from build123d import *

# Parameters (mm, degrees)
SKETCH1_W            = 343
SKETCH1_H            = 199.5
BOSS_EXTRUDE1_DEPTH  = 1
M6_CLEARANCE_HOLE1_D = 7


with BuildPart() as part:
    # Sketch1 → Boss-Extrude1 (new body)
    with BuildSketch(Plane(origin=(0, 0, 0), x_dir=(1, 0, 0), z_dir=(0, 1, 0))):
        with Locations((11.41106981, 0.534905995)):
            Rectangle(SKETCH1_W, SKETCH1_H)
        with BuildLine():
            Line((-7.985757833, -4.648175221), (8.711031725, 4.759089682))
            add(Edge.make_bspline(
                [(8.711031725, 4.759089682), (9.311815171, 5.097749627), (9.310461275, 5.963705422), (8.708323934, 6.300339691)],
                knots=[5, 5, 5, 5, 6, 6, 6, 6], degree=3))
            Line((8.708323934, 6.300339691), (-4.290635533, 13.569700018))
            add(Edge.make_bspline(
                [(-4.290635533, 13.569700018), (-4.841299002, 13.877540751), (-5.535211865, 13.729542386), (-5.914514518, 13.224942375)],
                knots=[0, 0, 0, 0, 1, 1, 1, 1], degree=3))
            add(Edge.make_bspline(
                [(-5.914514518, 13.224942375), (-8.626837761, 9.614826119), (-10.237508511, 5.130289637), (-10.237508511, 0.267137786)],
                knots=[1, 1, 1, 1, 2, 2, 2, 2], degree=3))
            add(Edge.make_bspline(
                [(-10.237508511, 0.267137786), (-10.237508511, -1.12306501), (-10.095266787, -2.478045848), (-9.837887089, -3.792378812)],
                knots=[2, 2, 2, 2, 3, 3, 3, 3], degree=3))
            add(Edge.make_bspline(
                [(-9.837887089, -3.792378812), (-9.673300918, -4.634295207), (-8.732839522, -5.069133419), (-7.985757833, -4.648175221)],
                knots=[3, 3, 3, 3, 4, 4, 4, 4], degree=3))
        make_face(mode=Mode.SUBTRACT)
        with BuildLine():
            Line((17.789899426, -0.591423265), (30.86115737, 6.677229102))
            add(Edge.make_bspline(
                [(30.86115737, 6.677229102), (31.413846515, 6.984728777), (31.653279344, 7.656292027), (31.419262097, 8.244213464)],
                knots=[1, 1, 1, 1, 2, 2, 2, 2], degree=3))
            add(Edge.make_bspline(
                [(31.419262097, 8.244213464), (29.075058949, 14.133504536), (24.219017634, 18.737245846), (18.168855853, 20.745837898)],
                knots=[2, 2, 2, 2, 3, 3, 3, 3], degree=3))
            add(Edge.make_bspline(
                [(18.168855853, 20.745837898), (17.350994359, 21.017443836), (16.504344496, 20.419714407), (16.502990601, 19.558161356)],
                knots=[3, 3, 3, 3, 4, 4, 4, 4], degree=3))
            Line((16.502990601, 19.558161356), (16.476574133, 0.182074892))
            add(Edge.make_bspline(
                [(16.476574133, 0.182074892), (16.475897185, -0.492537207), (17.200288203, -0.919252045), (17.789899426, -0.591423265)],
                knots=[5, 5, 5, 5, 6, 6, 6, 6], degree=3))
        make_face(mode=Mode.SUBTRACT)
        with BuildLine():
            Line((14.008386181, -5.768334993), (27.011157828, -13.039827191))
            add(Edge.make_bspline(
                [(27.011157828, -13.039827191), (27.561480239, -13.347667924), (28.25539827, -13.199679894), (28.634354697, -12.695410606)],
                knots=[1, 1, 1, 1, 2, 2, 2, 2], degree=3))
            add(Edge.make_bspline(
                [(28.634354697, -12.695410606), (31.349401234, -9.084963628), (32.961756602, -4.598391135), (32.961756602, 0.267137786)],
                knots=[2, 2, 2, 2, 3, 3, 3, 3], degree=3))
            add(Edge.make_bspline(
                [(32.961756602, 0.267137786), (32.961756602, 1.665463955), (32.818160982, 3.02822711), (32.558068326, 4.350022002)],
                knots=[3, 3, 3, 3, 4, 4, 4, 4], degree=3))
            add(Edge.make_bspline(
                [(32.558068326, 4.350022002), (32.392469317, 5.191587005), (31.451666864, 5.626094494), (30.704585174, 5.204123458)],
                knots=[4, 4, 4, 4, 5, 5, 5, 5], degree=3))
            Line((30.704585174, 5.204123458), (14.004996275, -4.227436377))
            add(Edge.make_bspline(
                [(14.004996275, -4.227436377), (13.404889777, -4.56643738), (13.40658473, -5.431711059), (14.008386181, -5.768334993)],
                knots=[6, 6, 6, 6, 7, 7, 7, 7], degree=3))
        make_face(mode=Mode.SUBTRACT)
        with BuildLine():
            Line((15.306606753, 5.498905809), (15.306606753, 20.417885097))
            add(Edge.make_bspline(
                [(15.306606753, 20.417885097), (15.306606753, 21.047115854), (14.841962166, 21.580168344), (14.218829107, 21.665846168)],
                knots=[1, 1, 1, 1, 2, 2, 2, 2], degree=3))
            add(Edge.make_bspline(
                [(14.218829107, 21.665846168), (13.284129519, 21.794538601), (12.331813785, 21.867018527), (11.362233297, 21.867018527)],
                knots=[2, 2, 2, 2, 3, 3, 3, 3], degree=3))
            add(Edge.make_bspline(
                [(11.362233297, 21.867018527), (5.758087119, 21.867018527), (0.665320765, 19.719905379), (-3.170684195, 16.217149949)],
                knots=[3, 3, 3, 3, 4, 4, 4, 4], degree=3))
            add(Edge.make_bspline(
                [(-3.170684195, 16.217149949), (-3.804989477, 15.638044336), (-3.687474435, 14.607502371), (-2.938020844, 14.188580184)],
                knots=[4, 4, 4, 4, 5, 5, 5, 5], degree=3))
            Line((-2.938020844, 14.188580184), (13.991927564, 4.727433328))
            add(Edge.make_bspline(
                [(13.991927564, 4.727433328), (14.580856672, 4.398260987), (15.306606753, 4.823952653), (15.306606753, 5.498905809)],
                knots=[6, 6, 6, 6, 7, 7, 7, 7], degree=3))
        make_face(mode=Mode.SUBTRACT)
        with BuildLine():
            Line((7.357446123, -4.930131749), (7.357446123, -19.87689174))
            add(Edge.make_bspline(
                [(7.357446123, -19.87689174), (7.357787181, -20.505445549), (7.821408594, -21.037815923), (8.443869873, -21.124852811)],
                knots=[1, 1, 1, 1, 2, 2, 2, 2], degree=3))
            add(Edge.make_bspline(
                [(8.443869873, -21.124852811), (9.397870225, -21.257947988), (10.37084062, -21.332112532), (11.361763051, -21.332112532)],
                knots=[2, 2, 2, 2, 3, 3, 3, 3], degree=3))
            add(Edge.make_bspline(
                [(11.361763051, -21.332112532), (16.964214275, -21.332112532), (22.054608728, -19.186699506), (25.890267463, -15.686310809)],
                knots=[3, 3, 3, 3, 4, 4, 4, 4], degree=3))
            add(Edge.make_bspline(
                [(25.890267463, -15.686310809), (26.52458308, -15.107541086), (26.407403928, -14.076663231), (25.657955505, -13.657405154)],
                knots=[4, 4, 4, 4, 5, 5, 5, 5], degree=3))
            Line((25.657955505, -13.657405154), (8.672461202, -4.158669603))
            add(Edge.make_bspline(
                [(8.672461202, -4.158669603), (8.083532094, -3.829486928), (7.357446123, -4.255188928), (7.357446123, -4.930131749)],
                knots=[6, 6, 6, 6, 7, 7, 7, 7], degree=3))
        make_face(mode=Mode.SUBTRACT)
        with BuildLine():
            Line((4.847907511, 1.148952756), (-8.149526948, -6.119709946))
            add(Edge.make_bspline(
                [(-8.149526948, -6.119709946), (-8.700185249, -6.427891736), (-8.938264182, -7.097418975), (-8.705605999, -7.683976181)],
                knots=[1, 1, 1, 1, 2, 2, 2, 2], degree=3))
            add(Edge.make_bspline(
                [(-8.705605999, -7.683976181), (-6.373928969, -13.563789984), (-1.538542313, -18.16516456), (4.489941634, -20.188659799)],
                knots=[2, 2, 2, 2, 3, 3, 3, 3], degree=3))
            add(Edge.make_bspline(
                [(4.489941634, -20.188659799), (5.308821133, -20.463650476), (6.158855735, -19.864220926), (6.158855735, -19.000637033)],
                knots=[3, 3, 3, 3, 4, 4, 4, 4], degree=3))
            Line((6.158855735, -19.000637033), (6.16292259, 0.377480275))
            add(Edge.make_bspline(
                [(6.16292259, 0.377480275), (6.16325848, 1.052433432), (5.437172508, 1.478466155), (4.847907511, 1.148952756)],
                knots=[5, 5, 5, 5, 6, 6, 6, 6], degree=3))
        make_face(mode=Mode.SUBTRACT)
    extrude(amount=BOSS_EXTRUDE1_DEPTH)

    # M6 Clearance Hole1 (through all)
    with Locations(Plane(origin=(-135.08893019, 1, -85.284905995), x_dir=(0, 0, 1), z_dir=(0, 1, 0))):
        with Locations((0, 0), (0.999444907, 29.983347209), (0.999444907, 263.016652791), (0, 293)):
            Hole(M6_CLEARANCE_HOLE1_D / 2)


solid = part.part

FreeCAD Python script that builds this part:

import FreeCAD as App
import Part
import Sketcher

V = App.Vector


def add_polygon(sketch, points):
    """Adds a closed chain of lines whose ends are joined by coincident constraints."""
    first, n = sketch.GeometryCount, len(points)
    for a, b in zip(points, points[1:] + points[:1]):
        sketch.addGeometry(Part.LineSegment(App.Vector(*a, 0), App.Vector(*b, 0)), False)
    for i in range(n):
        sketch.addConstraint(Sketcher.Constraint("Coincident", first + i, 2, first + (i + 1) % n, 1))

doc = App.newDocument("Part")
body = doc.addObject("PartDesign::Body", "Body")

sketch1 = doc.addObject("Sketcher::SketchObject", "Sketch")
body.addObject(sketch1)
sketch1.AttachmentSupport = (doc.XZ_Plane, [""])
sketch1.MapMode = "FlatFace"
add_polygon(sketch1, [(-160.08893, -100.284906), (-160.08893, 99.215094), (182.91107, 99.215094), (182.91107, -100.284906)])
sketch1.addGeometry(Part.LineSegment(V(-8.149527, 6.11971, 0), V(4.847908, -1.148953, 0)), False)
sketch1.addGeometry(Part.BSplineCurve([V(6.162923, -0.37748, 0), V(6.163258, -1.052433, 0), V(5.437173, -1.478466, 0), V(4.847908, -1.148953, 0)], [4, 4], [5, 6], False, 3, [1, 1, 1, 1], False), False)
sketch1.addGeometry(Part.LineSegment(V(6.162923, -0.37748, 0), V(6.158856, 19.000637, 0)), False)
sketch1.addGeometry(Part.BSplineCurve([V(4.489942, 20.18866, 0), V(5.308821, 20.46365, 0), V(6.158856, 19.864221, 0), V(6.158856, 19.000637, 0)], [4, 4], [3, 4], False, 3, [1, 1, 1, 1], False), False)
sketch1.addGeometry(Part.BSplineCurve([V(-8.705606, 7.683976, 0), V(-6.373929, 13.56379, 0), V(-1.538542, 18.165165, 0), V(4.489942, 20.18866, 0)], [4, 4], [2, 3], False, 3, [1, 1, 1, 1], False), False)
sketch1.addGeometry(Part.BSplineCurve([V(-8.149527, 6.11971, 0), V(-8.700185, 6.427892, 0), V(-8.938264, 7.097419, 0), V(-8.705606, 7.683976, 0)], [4, 4], [1, 2], False, 3, [1, 1, 1, 1], False), False)
sketch1.addGeometry(Part.LineSegment(V(7.357446, 19.876892, 0), V(7.357446, 4.930132, 0)), False)
sketch1.addGeometry(Part.BSplineCurve([V(8.672461, 4.15867, 0), V(8.083532, 3.829487, 0), V(7.357446, 4.255189, 0), V(7.357446, 4.930132, 0)], [4, 4], [6, 7], False, 3, [1, 1, 1, 1], False), False)
sketch1.addGeometry(Part.LineSegment(V(8.672461, 4.15867, 0), V(25.657956, 13.657405, 0)), False)
sketch1.addGeometry(Part.BSplineCurve([V(25.890267, 15.686311, 0), V(26.524583, 15.107541, 0), V(26.407404, 14.076663, 0), V(25.657956, 13.657405, 0)], [4, 4], [4, 5], False, 3, [1, 1, 1, 1], False), False)
sketch1.addGeometry(Part.BSplineCurve([V(8.44387, 21.124853, 0), V(9.39787, 21.257948, 0), V(10.370841, 21.332113, 0), V(16.964214, 21.332113, 0), V(22.054609, 19.1867, 0), V(25.890267, 15.686311, 0)], [4, 2, 4], [2, 3, 8.653773745], False, 3, [1, 1, 1, 1, 1, 1], False), False)
sketch1.addGeometry(Part.BSplineCurve([V(7.357446, 19.876892, 0), V(7.357787, 20.505446, 0), V(7.821409, 21.037816, 0), V(8.44387, 21.124853, 0)], [4, 4], [1, 2], False, 3, [1, 1, 1, 1], False), False)
sketch1.addGeometry(Part.LineSegment(V(27.011158, 13.039827, 0), V(14.008386, 5.768335, 0)), False)
sketch1.addGeometry(Part.BSplineCurve([V(14.004996, 4.227436, 0), V(13.40489, 4.566437, 0), V(13.406585, 5.431711, 0), V(14.008386, 5.768335, 0)], [4, 4], [6, 7], False, 3, [1, 1, 1, 1], False), False)
sketch1.addGeometry(Part.LineSegment(V(14.004996, 4.227436, 0), V(30.704585, -5.204123, 0)), False)
sketch1.addGeometry(Part.BSplineCurve([V(32.558068, -4.350022, 0), V(32.392469, -5.191587, 0), V(31.451667, -5.626094, 0), V(30.704585, -5.204123, 0)], [4, 4], [4, 5], False, 3, [1, 1, 1, 1], False), False)
sketch1.addGeometry(Part.BSplineCurve([V(28.634355, 12.695411, 0), V(31.349401, 9.084964, 0), V(32.961757, 4.598391, 0), V(32.961757, -1.665464, 0), V(32.818161, -3.028227, 0), V(32.558068, -4.350022, 0)], [4, 2, 4], [2, 3, 3.287394483], False, 3, [1, 1, 1, 1, 1, 1], False), False)
sketch1.addGeometry(Part.BSplineCurve([V(27.011158, 13.039827, 0), V(27.56148, 13.347668, 0), V(28.255398, 13.19968, 0), V(28.634355, 12.695411, 0)], [4, 4], [1, 2], False, 3, [1, 1, 1, 1], False), False)
sketch1.addGeometry(Part.LineSegment(V(8.711032, -4.75909, 0), V(-7.985758, 4.648175, 0)), False)
sketch1.addGeometry(Part.BSplineCurve([V(-9.837887, 3.792379, 0), V(-9.673301, 4.634295, 0), V(-8.73284, 5.069133, 0), V(-7.985758, 4.648175, 0)], [4, 4], [3, 4], False, 3, [1, 1, 1, 1], False), False)
sketch1.addGeometry(Part.BSplineCurve([V(-5.914515, -13.224942, 0), V(-8.626838, -9.614826, 0), V(-10.237509, -5.13029, 0), V(-10.237509, 1.123065, 0), V(-10.095267, 2.478046, 0), V(-9.837887, 3.792379, 0)], [4, 2, 4], [1, 2, 2.285864567], False, 3, [1, 1, 1, 1, 1, 1], False), False)
sketch1.addGeometry(Part.BSplineCurve([V(-4.290636, -13.5697, 0), V(-4.841299, -13.877541, 0), V(-5.535212, -13.729542, 0), V(-5.914515, -13.224942, 0)], [4, 4], [0, 1], False, 3, [1, 1, 1, 1], False), False)
sketch1.addGeometry(Part.LineSegment(V(-4.290636, -13.5697, 0), V(8.708324, -6.30034, 0)), False)
sketch1.addGeometry(Part.BSplineCurve([V(8.711032, -4.75909, 0), V(9.311815, -5.09775, 0), V(9.310461, -5.963705, 0), V(8.708324, -6.30034, 0)], [4, 4], [5, 6], False, 3, [1, 1, 1, 1], False), False)
sketch1.addGeometry(Part.LineSegment(V(15.306607, -20.417885, 0), V(15.306607, -5.498906, 0)), False)
sketch1.addGeometry(Part.BSplineCurve([V(13.991928, -4.727433, 0), V(14.580857, -4.398261, 0), V(15.306607, -4.823953, 0), V(15.306607, -5.498906, 0)], [4, 4], [6, 7], False, 3, [1, 1, 1, 1], False), False)
sketch1.addGeometry(Part.LineSegment(V(13.991928, -4.727433, 0), V(-2.938021, -14.18858, 0)), False)
sketch1.addGeometry(Part.BSplineCurve([V(-3.170684, -16.21715, 0), V(-3.804989, -15.638044, 0), V(-3.687474, -14.607502, 0), V(-2.938021, -14.18858, 0)], [4, 4], [4, 5], False, 3, [1, 1, 1, 1], False), False)
sketch1.addGeometry(Part.BSplineCurve([V(14.218829, -21.665846, 0), V(13.28413, -21.794539, 0), V(12.331814, -21.867019, 0), V(5.758087, -21.867019, 0), V(0.665321, -19.719905, 0), V(-3.170684, -16.21715, 0)], [4, 2, 4], [2, 3, 8.779970046], False, 3, [1, 1, 1, 1, 1, 1], False), False)
sketch1.addGeometry(Part.BSplineCurve([V(15.306607, -20.417885, 0), V(15.306607, -21.047116, 0), V(14.841962, -21.580168, 0), V(14.218829, -21.665846, 0)], [4, 4], [1, 2], False, 3, [1, 1, 1, 1], False), False)
sketch1.addGeometry(Part.LineSegment(V(30.861157, -6.677229, 0), V(17.789899, 0.591423, 0)), False)
sketch1.addGeometry(Part.BSplineCurve([V(16.476574, -0.182075, 0), V(16.475897, 0.492537, 0), V(17.200288, 0.919252, 0), V(17.789899, 0.591423, 0)], [4, 4], [5, 6], False, 3, [1, 1, 1, 1], False), False)
sketch1.addGeometry(Part.LineSegment(V(16.476574, -0.182075, 0), V(16.502991, -19.558161, 0)), False)
sketch1.addGeometry(Part.BSplineCurve([V(18.168856, -20.745838, 0), V(17.350994, -21.017444, 0), V(16.504344, -20.419714, 0), V(16.502991, -19.558161, 0)], [4, 4], [3, 4], False, 3, [1, 1, 1, 1], False), False)
sketch1.addGeometry(Part.BSplineCurve([V(31.419262, -8.244213, 0), V(29.075059, -14.133505, 0), V(24.219018, -18.737246, 0), V(18.168856, -20.745838, 0)], [4, 4], [2, 3], False, 3, [1, 1, 1, 1], False), False)
sketch1.addGeometry(Part.BSplineCurve([V(30.861157, -6.677229, 0), V(31.413847, -6.984729, 0), V(31.653279, -7.656292, 0), V(31.419262, -8.244213, 0)], [4, 4], [1, 2], False, 3, [1, 1, 1, 1], False), False)
sketch1.addConstraint([
    Sketcher.Constraint("Block", 5),
    Sketcher.Constraint("Block", 7),
    Sketcher.Constraint("Block", 8),
    Sketcher.Constraint("Block", 9),
    Sketcher.Constraint("Block", 11),
    Sketcher.Constraint("Block", 13),
    Sketcher.Constraint("Block", 14),
    Sketcher.Constraint("Block", 15),
    Sketcher.Constraint("Block", 17),
    Sketcher.Constraint("Block", 19),
    Sketcher.Constraint("Block", 20),
    Sketcher.Constraint("Block", 21),
    Sketcher.Constraint("Block", 23),
    Sketcher.Constraint("Block", 24),
    Sketcher.Constraint("Block", 25),
    Sketcher.Constraint("Block", 27),
    Sketcher.Constraint("Block", 29),
    Sketcher.Constraint("Block", 31),
    Sketcher.Constraint("Block", 32),
    Sketcher.Constraint("Block", 33),
    Sketcher.Constraint("Block", 35),
    Sketcher.Constraint("Block", 37),
    Sketcher.Constraint("Block", 38),
    Sketcher.Constraint("Block", 39),
    Sketcher.Constraint("Coincident", 4, 2, 5, 2),
    Sketcher.Constraint("Coincident", 5, 1, 6, 1),
    Sketcher.Constraint("Coincident", 6, 2, 7, 2),
    Sketcher.Constraint("Coincident", 9, 1, 4, 1),
    Sketcher.Constraint("Coincident", 10, 2, 11, 2),
    Sketcher.Constraint("Coincident", 11, 1, 12, 1),
    Sketcher.Constraint("Coincident", 12, 2, 13, 2),
    Sketcher.Constraint("Coincident", 15, 1, 10, 1),
    Sketcher.Constraint("Coincident", 16, 2, 17, 2),
    Sketcher.Constraint("Coincident", 17, 1, 18, 1),
    Sketcher.Constraint("Coincident", 18, 2, 19, 2),
    Sketcher.Constraint("Coincident", 21, 1, 16, 1),
    Sketcher.Constraint("Coincident", 22, 2, 23, 2),
    Sketcher.Constraint("Coincident", 25, 1, 26, 1),
    Sketcher.Constraint("Coincident", 26, 2, 27, 2),
    Sketcher.Constraint("Coincident", 27, 1, 22, 1),
    Sketcher.Constraint("Coincident", 28, 2, 29, 2),
    Sketcher.Constraint("Coincident", 29, 1, 30, 1),
    Sketcher.Constraint("Coincident", 30, 2, 31, 2),
    Sketcher.Constraint("Coincident", 33, 1, 28, 1),
    Sketcher.Constraint("Coincident", 34, 2, 35, 2),
    Sketcher.Constraint("Coincident", 35, 1, 36, 1),
    Sketcher.Constraint("Coincident", 36, 2, 37, 2),
    Sketcher.Constraint("Coincident", 39, 1, 34, 1),
    Sketcher.Constraint("Vertical", 0),
    Sketcher.Constraint("Horizontal", 1),
    Sketcher.Constraint("Vertical", 2),
    Sketcher.Constraint("Horizontal", 3),
    Sketcher.Constraint("DistanceX", 1, 1, 1, 2, 343.0),
    Sketcher.Constraint("DistanceY", 0, 1, 0, 2, 199.5),
    Sketcher.Constraint("DistanceX", 0, 2, -1, 1, 160.08893),
    Sketcher.Constraint("DistanceY", 12, 2, 1, 2, 85.557689),
])
pad1 = doc.addObject("PartDesign::Pad", "Pad")
body.addObject(pad1)
pad1.Profile = sketch1
pad1.Length = 1
pad1.Reversed = True

sketch2 = doc.addObject("Sketcher::SketchObject", "Sketch001")
body.addObject(sketch2)
sketch2.AttachmentSupport = (doc.XZ_Plane, [""])
sketch2.MapMode = "FlatFace"
sketch2.AttachmentOffset = App.Placement(V(0, 0, -1), App.Rotation())
sketch2.addGeometry([
    Part.Circle(V(-135.1, -85.3, 0), V(0, 0, 1), 3.5),
    Part.Circle(V(-105.1, -84.3, 0), V(0, 0, 1), 3.5),
    Part.Circle(V(127.9, -84.3, 0), V(0, 0, 1), 3.5),
    Part.Circle(V(157.9, -85.3, 0), V(0, 0, 1), 3.5),
], False)
sketch2.addConstraint([
    Sketcher.Constraint("Equal", 0, 1),
    Sketcher.Constraint("Equal", 1, 2),
    Sketcher.Constraint("Equal", 2, 3),
    Sketcher.Constraint("Horizontal", 1, 3, 2, 3),
    Sketcher.Constraint("Horizontal", 0, 3, 3, 3),
    Sketcher.Constraint("Diameter", 0, 7.0),
    Sketcher.Constraint("DistanceX", 0, 3, 3, 3, 293.0),
    Sketcher.Constraint("DistanceX", 0, 3, -1, 1, 135.08893),
    Sketcher.Constraint("DistanceY", 1, 3, -1, 1, 84.285461),
    Sketcher.Constraint("DistanceY", 0, 3, -1, 1, 85.284906),
    Sketcher.Constraint("DistanceX", 1, 3, -1, 1, 105.105583),
    Sketcher.Constraint("DistanceX", -1, 1, 2, 3, 127.927723),
])
doc.recompute()
hole = doc.addObject("PartDesign::Hole", "Hole")
body.addObject(hole)
hole.Profile = sketch2
hole.ThreadType = "None"
hole.Diameter = 7
hole.DepthType = "ThroughAll"
hole.Reversed = True

doc.recompute()
